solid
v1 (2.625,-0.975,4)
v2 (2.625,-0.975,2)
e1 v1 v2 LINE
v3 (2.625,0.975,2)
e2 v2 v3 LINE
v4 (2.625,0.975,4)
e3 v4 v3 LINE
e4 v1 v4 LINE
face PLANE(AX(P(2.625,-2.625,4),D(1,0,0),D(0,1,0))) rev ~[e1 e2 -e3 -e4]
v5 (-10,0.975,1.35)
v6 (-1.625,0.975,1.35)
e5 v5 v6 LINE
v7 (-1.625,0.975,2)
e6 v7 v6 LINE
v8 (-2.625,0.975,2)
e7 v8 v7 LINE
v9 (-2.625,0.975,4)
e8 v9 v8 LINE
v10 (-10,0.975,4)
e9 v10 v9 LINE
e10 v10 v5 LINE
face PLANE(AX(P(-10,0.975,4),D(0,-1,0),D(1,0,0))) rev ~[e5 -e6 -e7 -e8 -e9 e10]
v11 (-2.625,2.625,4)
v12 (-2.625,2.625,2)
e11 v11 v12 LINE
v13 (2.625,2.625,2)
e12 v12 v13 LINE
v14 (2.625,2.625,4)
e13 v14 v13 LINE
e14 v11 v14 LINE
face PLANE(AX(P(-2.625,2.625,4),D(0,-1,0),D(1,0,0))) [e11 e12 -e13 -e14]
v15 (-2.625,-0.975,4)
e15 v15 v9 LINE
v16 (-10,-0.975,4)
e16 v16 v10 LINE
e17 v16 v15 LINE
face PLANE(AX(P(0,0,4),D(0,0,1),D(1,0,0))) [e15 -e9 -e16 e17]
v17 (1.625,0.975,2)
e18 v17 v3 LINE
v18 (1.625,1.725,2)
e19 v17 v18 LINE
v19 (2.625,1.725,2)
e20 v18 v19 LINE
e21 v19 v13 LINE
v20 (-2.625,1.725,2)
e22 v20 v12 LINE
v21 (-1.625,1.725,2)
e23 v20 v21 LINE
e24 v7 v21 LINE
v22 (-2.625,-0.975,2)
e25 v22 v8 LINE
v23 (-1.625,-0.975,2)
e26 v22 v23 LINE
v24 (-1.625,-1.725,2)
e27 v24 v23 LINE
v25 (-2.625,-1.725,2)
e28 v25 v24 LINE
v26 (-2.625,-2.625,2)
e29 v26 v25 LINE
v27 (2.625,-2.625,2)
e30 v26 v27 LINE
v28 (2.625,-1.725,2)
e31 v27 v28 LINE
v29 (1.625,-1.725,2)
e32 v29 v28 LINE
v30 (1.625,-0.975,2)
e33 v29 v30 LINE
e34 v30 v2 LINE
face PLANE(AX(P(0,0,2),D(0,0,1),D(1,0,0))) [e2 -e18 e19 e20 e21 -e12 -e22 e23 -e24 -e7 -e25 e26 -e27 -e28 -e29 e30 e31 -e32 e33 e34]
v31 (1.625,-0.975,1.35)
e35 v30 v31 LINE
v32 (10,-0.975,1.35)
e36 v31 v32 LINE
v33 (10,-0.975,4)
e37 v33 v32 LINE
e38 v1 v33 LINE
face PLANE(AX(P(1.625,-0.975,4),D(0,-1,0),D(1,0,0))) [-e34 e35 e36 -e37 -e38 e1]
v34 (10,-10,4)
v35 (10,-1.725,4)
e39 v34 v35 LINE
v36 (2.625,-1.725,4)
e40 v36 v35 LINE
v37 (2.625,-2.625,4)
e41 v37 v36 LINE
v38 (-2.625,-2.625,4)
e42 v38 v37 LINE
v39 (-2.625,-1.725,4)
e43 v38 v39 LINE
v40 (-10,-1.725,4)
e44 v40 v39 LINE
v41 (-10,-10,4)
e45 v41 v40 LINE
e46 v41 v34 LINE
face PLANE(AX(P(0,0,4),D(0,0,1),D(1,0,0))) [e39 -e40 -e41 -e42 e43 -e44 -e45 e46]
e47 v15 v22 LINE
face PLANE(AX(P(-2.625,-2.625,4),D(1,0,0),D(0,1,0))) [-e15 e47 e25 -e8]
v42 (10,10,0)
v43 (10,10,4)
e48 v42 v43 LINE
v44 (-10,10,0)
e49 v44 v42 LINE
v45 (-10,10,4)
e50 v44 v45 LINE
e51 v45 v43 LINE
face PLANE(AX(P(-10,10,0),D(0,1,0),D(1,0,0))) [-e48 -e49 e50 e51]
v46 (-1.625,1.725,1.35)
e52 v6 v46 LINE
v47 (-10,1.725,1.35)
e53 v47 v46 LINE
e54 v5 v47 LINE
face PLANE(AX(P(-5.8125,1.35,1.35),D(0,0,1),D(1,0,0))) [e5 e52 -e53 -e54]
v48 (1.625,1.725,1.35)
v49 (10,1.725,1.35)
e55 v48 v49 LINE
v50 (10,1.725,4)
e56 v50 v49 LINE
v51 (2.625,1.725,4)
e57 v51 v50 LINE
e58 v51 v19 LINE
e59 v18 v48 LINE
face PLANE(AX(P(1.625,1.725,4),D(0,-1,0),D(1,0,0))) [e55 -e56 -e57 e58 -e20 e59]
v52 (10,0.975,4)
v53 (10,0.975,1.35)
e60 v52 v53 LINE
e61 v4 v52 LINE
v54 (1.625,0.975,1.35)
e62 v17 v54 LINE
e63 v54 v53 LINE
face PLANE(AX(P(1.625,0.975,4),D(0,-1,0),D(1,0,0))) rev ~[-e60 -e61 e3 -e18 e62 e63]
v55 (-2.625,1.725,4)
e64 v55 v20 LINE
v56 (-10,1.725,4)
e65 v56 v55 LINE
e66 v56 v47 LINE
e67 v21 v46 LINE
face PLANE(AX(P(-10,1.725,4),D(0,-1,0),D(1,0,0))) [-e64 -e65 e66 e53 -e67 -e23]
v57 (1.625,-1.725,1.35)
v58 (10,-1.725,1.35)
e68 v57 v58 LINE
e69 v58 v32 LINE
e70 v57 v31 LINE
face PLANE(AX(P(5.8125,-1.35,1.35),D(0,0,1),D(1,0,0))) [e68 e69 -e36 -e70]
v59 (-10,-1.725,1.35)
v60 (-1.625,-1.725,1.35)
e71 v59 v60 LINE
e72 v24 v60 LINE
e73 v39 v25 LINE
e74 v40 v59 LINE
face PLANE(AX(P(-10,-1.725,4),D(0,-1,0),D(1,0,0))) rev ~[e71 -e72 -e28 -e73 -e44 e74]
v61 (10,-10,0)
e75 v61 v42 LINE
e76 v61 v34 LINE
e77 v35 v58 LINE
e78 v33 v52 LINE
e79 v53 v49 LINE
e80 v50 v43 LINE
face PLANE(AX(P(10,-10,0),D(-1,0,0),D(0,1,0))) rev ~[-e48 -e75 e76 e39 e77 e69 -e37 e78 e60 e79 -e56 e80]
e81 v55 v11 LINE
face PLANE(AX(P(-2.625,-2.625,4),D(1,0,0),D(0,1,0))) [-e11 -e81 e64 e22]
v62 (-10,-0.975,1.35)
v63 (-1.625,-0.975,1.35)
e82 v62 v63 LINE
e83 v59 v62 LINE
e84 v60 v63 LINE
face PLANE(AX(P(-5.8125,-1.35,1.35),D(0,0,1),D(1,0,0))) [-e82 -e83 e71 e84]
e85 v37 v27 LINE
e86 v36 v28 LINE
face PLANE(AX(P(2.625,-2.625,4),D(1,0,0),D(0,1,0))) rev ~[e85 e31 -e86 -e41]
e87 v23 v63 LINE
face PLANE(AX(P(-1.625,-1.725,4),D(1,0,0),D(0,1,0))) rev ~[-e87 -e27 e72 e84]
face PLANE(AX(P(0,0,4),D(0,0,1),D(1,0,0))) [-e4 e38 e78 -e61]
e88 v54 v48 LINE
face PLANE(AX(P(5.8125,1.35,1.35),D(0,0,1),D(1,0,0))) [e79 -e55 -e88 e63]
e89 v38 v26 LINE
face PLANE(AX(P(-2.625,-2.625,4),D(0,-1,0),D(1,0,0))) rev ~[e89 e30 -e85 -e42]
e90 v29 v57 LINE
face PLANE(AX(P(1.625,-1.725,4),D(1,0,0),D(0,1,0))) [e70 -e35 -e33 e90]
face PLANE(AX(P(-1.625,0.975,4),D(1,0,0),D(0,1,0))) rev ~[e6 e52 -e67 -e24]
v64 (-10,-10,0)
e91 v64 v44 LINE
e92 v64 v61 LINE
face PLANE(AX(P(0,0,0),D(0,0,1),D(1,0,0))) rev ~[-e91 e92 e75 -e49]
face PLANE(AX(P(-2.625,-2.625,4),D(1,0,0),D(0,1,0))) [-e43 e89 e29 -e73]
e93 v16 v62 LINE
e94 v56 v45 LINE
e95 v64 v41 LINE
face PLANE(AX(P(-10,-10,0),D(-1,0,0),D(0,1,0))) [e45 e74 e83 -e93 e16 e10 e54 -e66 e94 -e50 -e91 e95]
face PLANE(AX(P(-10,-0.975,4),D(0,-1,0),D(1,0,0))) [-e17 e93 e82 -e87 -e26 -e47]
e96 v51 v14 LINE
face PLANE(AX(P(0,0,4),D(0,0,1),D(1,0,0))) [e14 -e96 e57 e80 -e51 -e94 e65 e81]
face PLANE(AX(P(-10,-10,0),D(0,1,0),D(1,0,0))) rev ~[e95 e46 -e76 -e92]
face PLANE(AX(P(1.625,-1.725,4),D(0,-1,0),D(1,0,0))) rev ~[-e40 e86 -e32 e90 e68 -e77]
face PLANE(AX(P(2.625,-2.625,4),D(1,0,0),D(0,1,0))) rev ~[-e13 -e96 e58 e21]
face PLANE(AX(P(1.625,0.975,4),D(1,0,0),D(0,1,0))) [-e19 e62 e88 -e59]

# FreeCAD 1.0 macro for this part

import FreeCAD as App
import Part
import Sketcher
from FreeCAD import Vector
Q = App.Units.Quantity

doc = App.newDocument("Part")
body = doc.addObject("PartDesign::Body", "Body")

# Sketch on XY plane
sketch1 = body.newObject("Sketcher::SketchObject", "Sketch")
sketch1.AttachmentSupport = (doc.getObject("XY_Plane"), [""])
sketch1.MapMode = "FlatFace"
sketch1.addGeometry([
    Part.LineSegment(Vector(-10, 10, 0), Vector(-10, -10, 0)),
    Part.LineSegment(Vector(-10, -10, 0), Vector(10, -10, 0)),
    Part.LineSegment(Vector(10, -10, 0), Vector(10, 10, 0)),
    Part.LineSegment(Vector(10, 10, 0), Vector(-10, 10, 0)),
], False)
sketch1.addConstraint([
    Sketcher.Constraint("Coincident", 0, 2, 1, 1),
    Sketcher.Constraint("Coincident", 1, 2, 2, 1),
    Sketcher.Constraint("Coincident", 2, 2, 3, 1),
    Sketcher.Constraint("Coincident", 3, 2, 0, 1),
    Sketcher.Constraint("Vertical", 0),
    Sketcher.Constraint("Horizontal", 1),
    Sketcher.Constraint("Vertical", 2),
    Sketcher.Constraint("Horizontal", 3),
    Sketcher.Constraint("Symmetric", 0, 2, 2, 2, -1, 1),
    Sketcher.Constraint("Equal", 3, 0),
    Sketcher.Constraint("DistanceX", 1, 1, 1, 2, Q("20 mm")),
])
pad1 = body.newObject("PartDesign::Pad", "Pad")
pad1.Profile = sketch1
pad1.Length = 4

# Sketch on XY plane
sketch2 = body.newObject("Sketcher::SketchObject", "Sketch001")
sketch2.AttachmentSupport = (doc.getObject("XY_Plane"), [""])
sketch2.MapMode = "FlatFace"
sketch2.AttachmentOffset = App.Placement(Vector(0, 0, 4), App.Rotation())
sketch2.addGeometry([
    Part.LineSegment(Vector(-2.625, 2.625, 0), Vector(-2.625, -2.625, 0)),
    Part.LineSegment(Vector(-2.625, -2.625, 0), Vector(2.625, -2.625, 0)),
    Part.LineSegment(Vector(2.625, -2.625, 0), Vector(2.625, 2.625, 0)),
    Part.LineSegment(Vector(2.625, 2.625, 0), Vector(-2.625, 2.625, 0)),
], False)
sketch2.addConstraint([
    Sketcher.Constraint("Coincident", 0, 2, 1, 1),
    Sketcher.Constraint("Coincident", 1, 2, 2, 1),
    Sketcher.Constraint("Coincident", 2, 2, 3, 1),
    Sketcher.Constraint("Coincident", 3, 2, 0, 1),
    Sketcher.Constraint("Vertical", 0),
    Sketcher.Constraint("Horizontal", 1),
    Sketcher.Constraint("Vertical", 2),
    Sketcher.Constraint("Horizontal", 3),
    Sketcher.Constraint("Symmetric", 0, 2, 2, 2, -1, 1),
    Sketcher.Constraint("Equal", 3, 0),
    Sketcher.Constraint("DistanceX", 1, 1, 1, 2, Q("5.25 mm")),
])
pocket1 = body.newObject("PartDesign::Pocket", "Pocket")
pocket1.Profile = sketch2
pocket1.Length = 2

# Sketch on XY plane
sketch3 = body.newObject("Sketcher::SketchObject", "Sketch002")
sketch3.AttachmentSupport = (doc.getObject("XY_Plane"), [""])
sketch3.MapMode = "FlatFace"
sketch3.AttachmentOffset = App.Placement(Vector(0, 0, 4), App.Rotation())
sketch3.addGeometry([
    Part.LineSegment(Vector(-10, 1.725, 0), Vector(-10, 0.975, 0)),  # 0
    Part.LineSegment(Vector(-10, 0.975, 0), Vector(-1.625, 0.975, 0)),  # 1
    Part.LineSegment(Vector(-1.625, 0.975, 0), Vector(-1.625, 1.725, 0)),  # 2
    Part.LineSegment(Vector(-1.625, 1.725, 0), Vector(-10, 1.725, 0)),  # 3
    Part.LineSegment(Vector(1.625, 1.725, 0), Vector(1.625, 0.975, 0)),  # 4
    Part.LineSegment(Vector(1.625, 0.975, 0), Vector(10, 0.975, 0)),  # 5
    Part.LineSegment(Vector(10, 0.975, 0), Vector(10, 1.725, 0)),  # 6
    Part.LineSegment(Vector(10, 1.725, 0), Vector(1.625, 1.725, 0)),  # 7
    Part.LineSegment(Vector(1.625, -0.975, 0), Vector(1.625, -1.725, 0)),  # 8
    Part.LineSegment(Vector(1.625, -1.725, 0), Vector(10, -1.725, 0)),  # 9
    Part.LineSegment(Vector(10, -1.725, 0), Vector(10, -0.975, 0)),  # 10
    Part.LineSegment(Vector(10, -0.975, 0), Vector(1.625, -0.975, 0)),  # 11
    Part.LineSegment(Vector(-10, -0.975, 0), Vector(-10, -1.725, 0)),  # 12
    Part.LineSegment(Vector(-10, -1.725, 0), Vector(-1.625, -1.725, 0)),  # 13
    Part.LineSegment(Vector(-1.625, -1.725, 0), Vector(-1.625, -0.975, 0)),  # 14
    Part.LineSegment(Vector(-1.625, -0.975, 0), Vector(-10, -0.975, 0)),  # 15
], False)
sketch3.addConstraint([
    Sketcher.Constraint("Coincident", 0, 2, 1, 1),
    Sketcher.Constraint("Coincident", 1, 2, 2, 1),
    Sketcher.Constraint("Coincident", 2, 2, 3, 1),
    Sketcher.Constraint("Coincident", 3, 2, 0, 1),
    Sketcher.Constraint("Coincident", 4, 2, 5, 1),
    Sketcher.Constraint("Coincident", 5, 2, 6, 1),
    Sketcher.Constraint("Coincident", 6, 2, 7, 1),
    Sketcher.Constraint("Coincident", 7, 2, 4, 1),
    Sketcher.Constraint("Coincident", 8, 2, 9, 1),
    Sketcher.Constraint("Coincident", 9, 2, 10, 1),
    Sketcher.Constraint("Coincident", 10, 2, 11, 1),
    Sketcher.Constraint("Coincident", 11, 2, 8, 1),
    Sketcher.Constraint("Coincident", 12, 2, 13, 1),
    Sketcher.Constraint("Coincident", 13, 2, 14, 1),
    Sketcher.Constraint("Coincident", 14, 2, 15, 1),
    Sketcher.Constraint("Coincident", 15, 2, 12, 1),
    Sketcher.Constraint("Vertical", 0),
    Sketcher.Constraint("Horizontal", 1),
    Sketcher.Constraint("Vertical", 2),
    Sketcher.Constraint("Horizontal", 3),
    Sketcher.Constraint("Vertical", 4),
    Sketcher.Constraint("Horizontal", 5),
    Sketcher.Constraint("Vertical", 6),
    Sketcher.Constraint("Horizontal", 7),
    Sketcher.Constraint("Vertical", 8),
    Sketcher.Constraint("Horizontal", 9),
    Sketcher.Constraint("Vertical", 10),
    Sketcher.Constraint("Horizontal", 11),
    Sketcher.Constraint("Vertical", 12),
    Sketcher.Constraint("Horizontal", 13),
    Sketcher.Constraint("Vertical", 14),
    Sketcher.Constraint("Horizontal", 15),
    Sketcher.Constraint("Symmetric", 2, 2, 8, 2, -1, 1),
    Sketcher.Constraint("Symmetric", 0, 2, 10, 2, -1, 1),
    Sketcher.Constraint("Symmetric", 6, 2, 12, 2, -1, 1),
    Sketcher.Constraint("Symmetric", 4, 2, 14, 2, -1, 1),
    Sketcher.Constraint("Symmetric", 1, 2, 4, 2, -2),
    Sketcher.Constraint("Symmetric", 3, 2, 6, 2, -2),
    Sketcher.Constraint("DistanceX", 0, 2, -1, 1, Q("10 mm")),
    Sketcher.Constraint("DistanceY", 0, 2, 0, 1, Q("0.75 mm")),
    Sketcher.Constraint("DistanceY", 8, 2, 4, 2, Q("2.7 mm")),
    Sketcher.Constraint("DistanceX", 1, 1, 1, 2, Q("8.375 mm")),
])
pocket2 = body.newObject("PartDesign::Pocket", "Pocket001")
pocket2.Profile = sketch3
pocket2.Length = 2.65

doc.recompute()
